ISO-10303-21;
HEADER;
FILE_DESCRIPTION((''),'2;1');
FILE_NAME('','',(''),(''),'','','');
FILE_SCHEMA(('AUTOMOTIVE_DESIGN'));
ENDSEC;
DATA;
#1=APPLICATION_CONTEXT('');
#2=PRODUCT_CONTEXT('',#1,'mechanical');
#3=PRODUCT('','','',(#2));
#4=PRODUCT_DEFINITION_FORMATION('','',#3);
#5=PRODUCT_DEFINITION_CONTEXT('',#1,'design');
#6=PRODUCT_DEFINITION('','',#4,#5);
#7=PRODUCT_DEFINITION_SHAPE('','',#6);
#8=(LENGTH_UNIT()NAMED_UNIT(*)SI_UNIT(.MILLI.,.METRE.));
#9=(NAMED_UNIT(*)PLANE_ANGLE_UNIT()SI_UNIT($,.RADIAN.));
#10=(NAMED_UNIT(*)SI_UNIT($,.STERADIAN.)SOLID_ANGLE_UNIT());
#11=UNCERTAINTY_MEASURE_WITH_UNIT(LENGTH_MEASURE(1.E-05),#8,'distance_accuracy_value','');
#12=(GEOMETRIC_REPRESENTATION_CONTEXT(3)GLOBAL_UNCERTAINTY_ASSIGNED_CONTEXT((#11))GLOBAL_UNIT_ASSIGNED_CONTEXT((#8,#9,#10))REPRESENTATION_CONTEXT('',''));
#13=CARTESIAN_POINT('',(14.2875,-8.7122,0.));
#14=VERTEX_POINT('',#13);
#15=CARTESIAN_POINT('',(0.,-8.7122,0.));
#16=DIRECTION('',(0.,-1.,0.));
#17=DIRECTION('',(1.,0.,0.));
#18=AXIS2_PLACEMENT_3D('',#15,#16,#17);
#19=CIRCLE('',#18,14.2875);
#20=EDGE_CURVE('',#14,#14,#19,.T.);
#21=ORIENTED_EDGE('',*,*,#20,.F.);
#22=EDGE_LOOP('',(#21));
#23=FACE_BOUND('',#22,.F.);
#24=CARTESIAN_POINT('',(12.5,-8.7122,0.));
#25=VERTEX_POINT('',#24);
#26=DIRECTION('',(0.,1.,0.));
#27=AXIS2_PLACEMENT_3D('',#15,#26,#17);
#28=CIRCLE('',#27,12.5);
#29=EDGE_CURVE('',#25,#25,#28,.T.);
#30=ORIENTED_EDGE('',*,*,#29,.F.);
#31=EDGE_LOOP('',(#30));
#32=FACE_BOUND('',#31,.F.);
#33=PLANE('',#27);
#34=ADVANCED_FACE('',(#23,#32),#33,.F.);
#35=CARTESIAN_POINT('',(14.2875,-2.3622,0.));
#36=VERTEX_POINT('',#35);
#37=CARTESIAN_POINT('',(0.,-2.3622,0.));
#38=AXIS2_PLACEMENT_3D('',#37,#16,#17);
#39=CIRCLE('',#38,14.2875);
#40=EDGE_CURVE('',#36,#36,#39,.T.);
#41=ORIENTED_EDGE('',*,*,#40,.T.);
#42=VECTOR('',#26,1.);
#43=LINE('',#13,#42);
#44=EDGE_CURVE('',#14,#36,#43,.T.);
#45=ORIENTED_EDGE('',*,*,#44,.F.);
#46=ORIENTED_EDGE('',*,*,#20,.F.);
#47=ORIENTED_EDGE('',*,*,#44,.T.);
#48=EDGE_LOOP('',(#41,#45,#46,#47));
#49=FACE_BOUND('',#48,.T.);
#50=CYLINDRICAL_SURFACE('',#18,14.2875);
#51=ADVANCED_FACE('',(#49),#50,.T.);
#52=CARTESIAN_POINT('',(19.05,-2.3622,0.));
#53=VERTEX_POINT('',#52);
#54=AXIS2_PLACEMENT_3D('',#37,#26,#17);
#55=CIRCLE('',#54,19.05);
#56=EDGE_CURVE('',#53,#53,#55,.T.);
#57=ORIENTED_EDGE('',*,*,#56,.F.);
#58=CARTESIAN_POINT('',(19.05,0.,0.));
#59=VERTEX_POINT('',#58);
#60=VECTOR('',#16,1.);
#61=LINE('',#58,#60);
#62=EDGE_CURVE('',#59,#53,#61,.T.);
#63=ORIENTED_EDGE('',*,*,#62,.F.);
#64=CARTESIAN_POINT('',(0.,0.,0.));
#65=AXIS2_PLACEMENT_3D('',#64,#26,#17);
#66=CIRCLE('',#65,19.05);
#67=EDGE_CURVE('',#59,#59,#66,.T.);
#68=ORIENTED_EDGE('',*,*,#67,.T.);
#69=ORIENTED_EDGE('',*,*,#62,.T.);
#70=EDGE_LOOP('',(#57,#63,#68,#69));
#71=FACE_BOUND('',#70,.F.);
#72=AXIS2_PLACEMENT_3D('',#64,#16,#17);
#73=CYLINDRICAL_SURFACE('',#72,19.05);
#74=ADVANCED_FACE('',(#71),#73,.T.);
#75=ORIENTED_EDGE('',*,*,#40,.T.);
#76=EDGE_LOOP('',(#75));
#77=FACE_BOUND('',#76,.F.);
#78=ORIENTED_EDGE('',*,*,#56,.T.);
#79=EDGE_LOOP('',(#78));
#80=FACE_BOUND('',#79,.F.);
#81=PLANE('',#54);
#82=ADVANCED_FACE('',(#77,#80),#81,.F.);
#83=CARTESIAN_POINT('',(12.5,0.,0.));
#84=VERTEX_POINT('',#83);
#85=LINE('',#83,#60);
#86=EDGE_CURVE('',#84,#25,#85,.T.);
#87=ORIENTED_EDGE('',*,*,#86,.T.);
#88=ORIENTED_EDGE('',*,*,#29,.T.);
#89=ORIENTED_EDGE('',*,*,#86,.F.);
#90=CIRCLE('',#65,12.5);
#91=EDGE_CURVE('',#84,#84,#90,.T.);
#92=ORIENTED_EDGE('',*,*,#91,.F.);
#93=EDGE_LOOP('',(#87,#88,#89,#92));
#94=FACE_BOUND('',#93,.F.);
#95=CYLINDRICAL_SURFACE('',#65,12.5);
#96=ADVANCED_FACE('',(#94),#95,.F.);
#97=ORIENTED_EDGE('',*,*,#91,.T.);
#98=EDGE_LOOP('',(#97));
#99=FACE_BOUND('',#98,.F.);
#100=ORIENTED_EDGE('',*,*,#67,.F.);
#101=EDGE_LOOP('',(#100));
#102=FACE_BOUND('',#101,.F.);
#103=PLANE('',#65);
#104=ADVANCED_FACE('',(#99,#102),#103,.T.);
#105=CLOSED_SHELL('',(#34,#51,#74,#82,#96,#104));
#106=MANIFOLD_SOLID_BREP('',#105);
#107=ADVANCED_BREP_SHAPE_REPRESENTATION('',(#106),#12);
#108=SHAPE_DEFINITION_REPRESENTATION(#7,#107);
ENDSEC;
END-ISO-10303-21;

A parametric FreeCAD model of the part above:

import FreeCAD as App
import Part
import Sketcher
from FreeCAD import Vector
Q = App.Units.Quantity


def add_polygon(sketch, points):
    """Adds a closed chain of lines whose ends are joined by coincident constraints."""
    first, n = sketch.GeometryCount, len(points)
    for a, b in zip(points, points[1:] + points[:1]):
        sketch.addGeometry(Part.LineSegment(App.Vector(*a, 0), App.Vector(*b, 0)), False)
    for i in range(n):
        sketch.addConstraint(Sketcher.Constraint("Coincident", first + i, 2, first + (i + 1) % n, 1))

doc = App.newDocument("Part")
body = doc.addObject("PartDesign::Body", "Body")

sketch1 = body.newObject("Sketcher::SketchObject", "Sketch")
sketch1.AttachmentSupport = (doc.getObject("XY_Plane"), [""])
sketch1.MapMode = "FlatFace"
add_polygon(sketch1, [(19.1, 0), (0, 0), (0, -8.7), (14.8, -8.7), (14.8, -2.4), (19.1, -2.4)])
sketch1.addConstraint([
    Sketcher.Constraint("Horizontal", 0),
    Sketcher.Constraint("Vertical", 1),
    Sketcher.Constraint("Horizontal", 2),
    Sketcher.Constraint("Vertical", 3),
    Sketcher.Constraint("Horizontal", 4),
    Sketcher.Constraint("Vertical", 5),
    Sketcher.Constraint("Coincident", 0, 2, -1, 1),
    Sketcher.Constraint("DistanceX", 0, 2, 0, 1, Q("0.75 in")),
    Sketcher.Constraint("DistanceY", 3, 1, 3, 2, Q("0.25 in")),
    Sketcher.Constraint("DistanceX", 4, 1, 4, 2, Q("0.167 in")),
    Sketcher.Constraint("DistanceY", 5, 1, 5, 2, Q("0.093 in")),
])
revolution = body.newObject("PartDesign::Revolution", "Revolution")
revolution.Profile = sketch1
revolution.ReferenceAxis = (sketch1, ["V_Axis"])
revolution.Angle = 360

sketch2 = body.newObject("Sketcher::SketchObject", "Sketch001")
sketch2.AttachmentSupport = (doc.getObject("XZ_Plane"), [""])
sketch2.MapMode = "FlatFace"
sketch2.addGeometry(Part.Circle(Vector(0, 0, 0), Vector(0, 0, 1), 12), False)
sketch2.addConstraint([
    Sketcher.Constraint("Coincident", 0, 3, -1, 1),
    Sketcher.Constraint("Diameter", 0, 25.0),
])
pocket1 = body.newObject("PartDesign::Pocket", "Pocket")
pocket1.Profile = sketch2
pocket1.Length = Q("1 in")
pocket1.Reversed = True

sketch3 = body.newObject("Sketcher::SketchObject", "Sketch002")
sketch3.AttachmentSupport = (doc.getObject("XZ_Plane"), [""])
sketch3.MapMode = "FlatFace"
sketch3.AttachmentOffset = App.Placement(Vector(0, 0, 0.343 * 25.4), App.Rotation())
sketch3.addGeometry([
    Part.Circle(Vector(0, 0, 0), Vector(0, 0, 1), 15),
    Part.Circle(Vector(0, 0, 0), Vector(0, 0, 1), 14),
], False)
sketch3.addConstraint([
    Sketcher.Constraint("Coincident", 0, 3, -1, 1),
    Sketcher.Constraint("Coincident", 1, 3, -1, 1),
    Sketcher.Constraint("Diameter", 1, Q("1.125 in")),
    Sketcher.Constraint("Diameter", 0, Q("1.166 in")),
])
pocket2 = body.newObject("PartDesign::Pocket", "Pocket001")
pocket2.Profile = sketch3
pocket2.Length = Q("0.25 in")

doc.recompute()
